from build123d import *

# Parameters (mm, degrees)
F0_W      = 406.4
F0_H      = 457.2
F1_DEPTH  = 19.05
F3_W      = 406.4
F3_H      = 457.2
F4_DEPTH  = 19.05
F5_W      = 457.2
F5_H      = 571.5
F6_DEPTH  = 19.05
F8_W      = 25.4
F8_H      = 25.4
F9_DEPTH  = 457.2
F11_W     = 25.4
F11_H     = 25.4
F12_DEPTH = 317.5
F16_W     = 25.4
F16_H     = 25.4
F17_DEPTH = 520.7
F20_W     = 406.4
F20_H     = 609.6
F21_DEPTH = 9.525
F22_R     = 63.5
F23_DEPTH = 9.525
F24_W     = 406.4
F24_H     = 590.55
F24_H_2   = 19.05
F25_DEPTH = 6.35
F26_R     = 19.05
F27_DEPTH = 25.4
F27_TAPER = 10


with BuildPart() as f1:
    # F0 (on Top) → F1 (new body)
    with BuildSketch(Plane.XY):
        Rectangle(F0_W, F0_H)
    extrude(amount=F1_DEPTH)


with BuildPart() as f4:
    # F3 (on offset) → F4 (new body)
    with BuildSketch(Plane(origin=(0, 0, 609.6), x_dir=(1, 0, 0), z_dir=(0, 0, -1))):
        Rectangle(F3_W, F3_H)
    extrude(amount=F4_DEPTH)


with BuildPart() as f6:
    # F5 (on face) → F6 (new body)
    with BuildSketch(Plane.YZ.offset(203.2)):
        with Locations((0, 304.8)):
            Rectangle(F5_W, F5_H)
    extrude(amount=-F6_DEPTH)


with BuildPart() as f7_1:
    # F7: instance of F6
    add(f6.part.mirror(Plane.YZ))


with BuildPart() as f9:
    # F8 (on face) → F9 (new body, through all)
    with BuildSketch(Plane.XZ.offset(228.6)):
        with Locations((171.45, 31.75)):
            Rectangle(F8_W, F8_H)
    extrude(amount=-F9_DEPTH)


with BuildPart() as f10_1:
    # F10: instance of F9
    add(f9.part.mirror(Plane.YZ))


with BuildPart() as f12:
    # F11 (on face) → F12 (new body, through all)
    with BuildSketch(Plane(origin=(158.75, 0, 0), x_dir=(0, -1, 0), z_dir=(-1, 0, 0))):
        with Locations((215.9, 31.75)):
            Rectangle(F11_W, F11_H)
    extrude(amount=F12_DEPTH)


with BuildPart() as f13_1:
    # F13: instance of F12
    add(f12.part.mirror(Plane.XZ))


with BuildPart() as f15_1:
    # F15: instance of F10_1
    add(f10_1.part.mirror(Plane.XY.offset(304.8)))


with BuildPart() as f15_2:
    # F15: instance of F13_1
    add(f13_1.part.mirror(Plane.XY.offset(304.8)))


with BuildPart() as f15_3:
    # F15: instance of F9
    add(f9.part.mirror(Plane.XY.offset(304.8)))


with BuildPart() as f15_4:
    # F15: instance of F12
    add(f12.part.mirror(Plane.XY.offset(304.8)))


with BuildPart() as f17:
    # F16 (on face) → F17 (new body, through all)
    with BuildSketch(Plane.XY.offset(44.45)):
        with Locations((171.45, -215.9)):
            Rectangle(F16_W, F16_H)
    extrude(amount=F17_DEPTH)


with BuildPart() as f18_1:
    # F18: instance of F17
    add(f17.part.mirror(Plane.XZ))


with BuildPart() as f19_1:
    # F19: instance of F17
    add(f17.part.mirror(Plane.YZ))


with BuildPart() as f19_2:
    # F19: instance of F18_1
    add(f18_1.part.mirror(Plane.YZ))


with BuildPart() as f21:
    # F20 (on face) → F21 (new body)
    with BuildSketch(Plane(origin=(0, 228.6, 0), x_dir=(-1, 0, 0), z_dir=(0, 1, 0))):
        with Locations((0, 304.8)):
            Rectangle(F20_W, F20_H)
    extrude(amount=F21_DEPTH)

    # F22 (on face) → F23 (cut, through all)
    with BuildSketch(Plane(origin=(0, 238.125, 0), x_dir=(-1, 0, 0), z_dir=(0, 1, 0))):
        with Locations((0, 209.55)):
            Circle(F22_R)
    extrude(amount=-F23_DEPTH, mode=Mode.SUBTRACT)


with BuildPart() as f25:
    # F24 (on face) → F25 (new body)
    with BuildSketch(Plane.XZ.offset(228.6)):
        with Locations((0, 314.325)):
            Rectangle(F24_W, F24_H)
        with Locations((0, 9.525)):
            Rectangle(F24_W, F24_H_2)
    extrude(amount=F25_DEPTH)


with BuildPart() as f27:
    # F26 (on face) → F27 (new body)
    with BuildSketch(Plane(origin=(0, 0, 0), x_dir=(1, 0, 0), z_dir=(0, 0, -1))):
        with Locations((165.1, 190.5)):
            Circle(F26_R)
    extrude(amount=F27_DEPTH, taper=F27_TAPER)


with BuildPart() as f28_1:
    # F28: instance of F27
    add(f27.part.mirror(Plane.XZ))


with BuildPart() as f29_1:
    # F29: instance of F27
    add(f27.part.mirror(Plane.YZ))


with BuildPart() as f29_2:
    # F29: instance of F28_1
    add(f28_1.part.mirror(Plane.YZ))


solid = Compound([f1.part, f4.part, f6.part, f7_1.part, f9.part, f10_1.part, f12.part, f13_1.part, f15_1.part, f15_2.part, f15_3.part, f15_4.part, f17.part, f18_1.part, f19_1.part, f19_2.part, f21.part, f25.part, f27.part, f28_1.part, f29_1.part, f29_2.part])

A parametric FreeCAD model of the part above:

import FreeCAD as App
import Part
import Sketcher

V = App.Vector
Q = App.Units.Quantity


def add_polygon(sketch, points):
    """Adds a closed chain of lines whose ends are joined by coincident constraints."""
    first, n = sketch.GeometryCount, len(points)
    for a, b in zip(points, points[1:] + points[:1]):
        sketch.addGeometry(Part.LineSegment(App.Vector(*a, 0), App.Vector(*b, 0)), False)
    for i in range(n):
        sketch.addConstraint(Sketcher.Constraint("Coincident", first + i, 2, first + (i + 1) % n, 1))

doc = App.newDocument("Part")
body = doc.addObject("PartDesign::Body", "Body")

# Sketch on XY plane
sketch1 = doc.addObject("Sketcher::SketchObject", "Sketch")
body.addObject(sketch1)
sketch1.AttachmentSupport = (doc.XY_Plane, [""])
sketch1.MapMode = "FlatFace"
add_polygon(sketch1, [(-203.2, 228.6), (-203.2, -228.6), (203.2, -228.6), (203.2, 228.6)])  # lines 0-3
sketch1.addConstraint([
    Sketcher.Constraint("Vertical", 0),
    Sketcher.Constraint("Horizontal", 1),
    Sketcher.Constraint("Vertical", 2),
    Sketcher.Constraint("Horizontal", 3),
    Sketcher.Constraint("Symmetric", 0, 2, 2, 2, -1, 1),
    Sketcher.Constraint("DistanceX", 1, 1, 1, 2, Q("16 in")),
    Sketcher.Constraint("DistanceY", 0, 2, 0, 1, Q("18 in")),
])
pad1 = doc.addObject("PartDesign::Pad", "Pad")
body.addObject(pad1)
pad1.Profile = sketch1
pad1.Length = Q("0.75 in")
body2 = doc.addObject("PartDesign::Body", "Body001")

# Sketch on XY plane
sketch2 = doc.addObject("Sketcher::SketchObject", "Sketch001")
body2.addObject(sketch2)
sketch2.AttachmentSupport = (doc.getObject("XY_Plane001"), [""])
sketch2.MapMode = "FlatFace"
sketch2.AttachmentOffset = App.Placement(V(0, 0, 24 * 25.4), App.Rotation())
add_polygon(sketch2, [(-203.2, -228.6), (-203.2, 228.6), (203.2, 228.6), (203.2, -228.6)])  # lines 0-3
sketch2.addConstraint([
    Sketcher.Constraint("Vertical", 0),
    Sketcher.Constraint("Horizontal", 1),
    Sketcher.Constraint("Vertical", 2),
    Sketcher.Constraint("Horizontal", 3),
    Sketcher.Constraint("Symmetric", 0, 2, 2, 2, -1, 1),
    Sketcher.Constraint("DistanceX", 1, 1, 1, 2, Q("16 in")),
    Sketcher.Constraint("DistanceY", 0, 1, 0, 2, Q("18 in")),
])
pad2 = doc.addObject("PartDesign::Pad", "Pad001")
body2.addObject(pad2)
pad2.Profile = sketch2
pad2.Length = Q("0.75 in")
pad2.Reversed = True
body3 = doc.addObject("PartDesign::Body", "Body002")

# Sketch on YZ plane
sketch3 = doc.addObject("Sketcher::SketchObject", "Sketch002")
body3.addObject(sketch3)
sketch3.AttachmentSupport = (doc.getObject("YZ_Plane002"), [""])
sketch3.MapMode = "FlatFace"
sketch3.AttachmentOffset = App.Placement(V(0, 0, 8 * 25.4), App.Rotation())
add_polygon(sketch3, [(-228.6, 590.55), (-228.6, 19.05), (228.6, 19.05), (228.6, 590.55)])  # lines 0-3
sketch3.addConstraint([
    Sketcher.Constraint("Vertical", 0),
    Sketcher.Constraint("Horizontal", 1),
    Sketcher.Constraint("Vertical", 2),
    Sketcher.Constraint("Horizontal", 3),
    Sketcher.Constraint("DistanceX", 1, 1, 1, 2, Q("18 in")),
    Sketcher.Constraint("DistanceY", 0, 2, 0, 1, Q("22.5 in")),
    Sketcher.Constraint("DistanceX", 0, 2, -1, 1, Q("9 in")),
    Sketcher.Constraint("DistanceY", -1, 1, 0, 2, Q("0.75 in")),
])
pad3 = doc.addObject("PartDesign::Pad", "Pad002")
body3.addObject(pad3)
pad3.Profile = sketch3
pad3.Length = Q("0.75 in")
pad3.Reversed = True
body4 = doc.addObject("PartDesign::Body", "Body003")
doc.recompute()

mirroring = doc.addObject("Part::Mirroring", "Mirroring")
mirroring.Source = body3
mirroring.Base = V(0, 0, 0)
mirroring.Normal = V(1, 0, 0)
body4.BaseFeature = mirroring
doc.recompute()
body5 = doc.addObject("PartDesign::Body", "Body004")

# Sketch on XZ plane
sketch4 = doc.addObject("Sketcher::SketchObject", "Sketch003")
body5.addObject(sketch4)
sketch4.AttachmentSupport = (doc.getObject("XZ_Plane004"), [""])
sketch4.MapMode = "FlatFace"
sketch4.AttachmentOffset = App.Placement(V(0, 0, 9 * 25.4), App.Rotation())
add_polygon(sketch4, [(158.75, 44.45), (158.75, 19.05), (184.15, 19.05), (184.15, 44.45)])  # lines 0-3
sketch4.addConstraint([
    Sketcher.Constraint("Vertical", 0),
    Sketcher.Constraint("Horizontal", 1),
    Sketcher.Constraint("Vertical", 2),
    Sketcher.Constraint("Horizontal", 3),
    Sketcher.Constraint("Equal", 3, 0),
    Sketcher.Constraint("DistanceX", 1, 1, 1, 2, Q("1 in")),
    Sketcher.Constraint("DistanceX", -1, 1, 0, 2, Q("6.25 in")),
    Sketcher.Constraint("DistanceY", -1, 1, 0, 2, Q("0.75 in")),
])
pad4 = doc.addObject("PartDesign::Pad", "Pad003")
body5.addObject(pad4)
pad4.Profile = sketch4
pad4.Length = Q("18 in")
pad4.Reversed = True
body6 = doc.addObject("PartDesign::Body", "Body005")
doc.recompute()

mirroring2 = doc.addObject("Part::Mirroring", "Mirroring001")
mirroring2.Source = body5
mirroring2.Base = V(0, 0, 0)
mirroring2.Normal = V(1, 0, 0)
body6.BaseFeature = mirroring2
doc.recompute()
body7 = doc.addObject("PartDesign::Body", "Body006")

# Sketch on YZ plane
sketch5 = doc.addObject("Sketcher::SketchObject", "Sketch004")
body7.addObject(sketch5)
sketch5.AttachmentSupport = (doc.getObject("YZ_Plane006"), [""])
sketch5.MapMode = "FlatFace"
sketch5.AttachmentOffset = App.Placement(V(0, 0, 6.25 * 25.4), App.Rotation())
add_polygon(sketch5, [(-203.2, 44.45), (-203.2, 19.05), (-228.6, 19.05), (-228.6, 44.45)])  # lines 0-3
sketch5.addConstraint([
    Sketcher.Constraint("Vertical", 0),
    Sketcher.Constraint("Horizontal", 1),
    Sketcher.Constraint("Vertical", 2),
    Sketcher.Constraint("Horizontal", 3),
    Sketcher.Constraint("Equal", 3, 0),
    Sketcher.Constraint("DistanceX", 1, 2, 1, 1, Q("1 in")),
    Sketcher.Constraint("DistanceX", 0, 2, -1, 1, Q("8 in")),
    Sketcher.Constraint("DistanceY", -1, 1, 0, 2, Q("0.75 in")),
])
pad5 = doc.addObject("PartDesign::Pad", "Pad004")
body7.addObject(pad5)
pad5.Profile = sketch5
pad5.Length = Q("12.5 in")
pad5.Reversed = True
body8 = doc.addObject("PartDesign::Body", "Body007")
doc.recompute()

mirroring3 = doc.addObject("Part::Mirroring", "Mirroring002")
mirroring3.Source = body7
mirroring3.Base = V(0, 0, 0)
mirroring3.Normal = V(0, -1, 0)
body8.BaseFeature = mirroring3
doc.recompute()
body9 = doc.addObject("PartDesign::Body", "Body008")
doc.recompute()

mirroring4 = doc.addObject("Part::Mirroring", "Mirroring003")
mirroring4.Source = body6
mirroring4.Base = V(0, 0, 304.8)
mirroring4.Normal = V(0, 0, 1)
body9.BaseFeature = mirroring4
doc.recompute()
body10 = doc.addObject("PartDesign::Body", "Body009")
doc.recompute()

mirroring5 = doc.addObject("Part::Mirroring", "Mirroring004")
mirroring5.Source = body8
mirroring5.Base = V(0, 0, 304.8)
mirroring5.Normal = V(0, 0, 1)
body10.BaseFeature = mirroring5
doc.recompute()
body11 = doc.addObject("PartDesign::Body", "Body010")
doc.recompute()

mirroring6 = doc.addObject("Part::Mirroring", "Mirroring005")
mirroring6.Source = body5
mirroring6.Base = V(0, 0, 304.8)
mirroring6.Normal = V(0, 0, 1)
body11.BaseFeature = mirroring6
doc.recompute()
body12 = doc.addObject("PartDesign::Body", "Body011")
doc.recompute()

mirroring7 = doc.addObject("Part::Mirroring", "Mirroring006")
mirroring7.Source = body7
mirroring7.Base = V(0, 0, 304.8)
mirroring7.Normal = V(0, 0, 1)
body12.BaseFeature = mirroring7
doc.recompute()
body13 = doc.addObject("PartDesign::Body", "Body012")

# Sketch on XY plane
sketch6 = doc.addObject("Sketcher::SketchObject", "Sketch005")
body13.addObject(sketch6)
sketch6.AttachmentSupport = (doc.getObject("XY_Plane012"), [""])
sketch6.MapMode = "FlatFace"
sketch6.AttachmentOffset = App.Placement(V(0, 0, 1.75 * 25.4), App.Rotation())
add_polygon(sketch6, [(158.75, -203.2), (158.75, -228.6), (184.15, -228.6), (184.15, -203.2)])  # lines 0-3
sketch6.addConstraint([
    Sketcher.Constraint("Vertical", 0),
    Sketcher.Constraint("Horizontal", 1),
    Sketcher.Constraint("Vertical", 2),
    Sketcher.Constraint("Horizontal", 3),
    Sketcher.Constraint("Equal", 3, 0),
    Sketcher.Constraint("DistanceX", 1, 1, 1, 2, Q("1 in")),
    Sketcher.Constraint("DistanceY", 0, 2, -1, 1, Q("9 in")),
    Sketcher.Constraint("DistanceX", -1, 1, 0, 2, Q("6.25 in")),
])
pad6 = doc.addObject("PartDesign::Pad", "Pad005")
body13.addObject(pad6)
pad6.Profile = sketch6
pad6.Length = Q("20.5 in")
body14 = doc.addObject("PartDesign::Body", "Body013")
doc.recompute()

mirroring8 = doc.addObject("Part::Mirroring", "Mirroring007")
mirroring8.Source = body13
mirroring8.Base = V(0, 0, 0)
mirroring8.Normal = V(0, -1, 0)
body14.BaseFeature = mirroring8
doc.recompute()
body15 = doc.addObject("PartDesign::Body", "Body014")
doc.recompute()

mirroring9 = doc.addObject("Part::Mirroring", "Mirroring008")
mirroring9.Source = body13
mirroring9.Base = V(0, 0, 0)
mirroring9.Normal = V(1, 0, 0)
body15.BaseFeature = mirroring9
doc.recompute()
body16 = doc.addObject("PartDesign::Body", "Body015")
doc.recompute()

mirroring10 = doc.addObject("Part::Mirroring", "Mirroring009")
mirroring10.Source = body14
mirroring10.Base = V(0, 0, 0)
mirroring10.Normal = V(1, 0, 0)
body16.BaseFeature = mirroring10
doc.recompute()
body17 = doc.addObject("PartDesign::Body", "Body016")

# Sketch on XZ plane
sketch7 = doc.addObject("Sketcher::SketchObject", "Sketch006")
body17.addObject(sketch7)
sketch7.AttachmentSupport = (doc.getObject("XZ_Plane016"), [""])
sketch7.MapMode = "FlatFace"
sketch7.AttachmentOffset = App.Placement(V(0, 0, -9 * 25.4), App.Rotation())
add_polygon(sketch7, [(203.2, 609.6), (203.2, 0), (-203.2, 0), (-203.2, 609.6)])  # lines 0-3
sketch7.addConstraint([
    Sketcher.Constraint("Vertical", 0),
    Sketcher.Constraint("Horizontal", 1),
    Sketcher.Constraint("Vertical", 2),
    Sketcher.Constraint("Horizontal", 3),
    Sketcher.Constraint("Symmetric", 0, 2, 1, 2, -1, 1),
    Sketcher.Constraint("DistanceX", 1, 2, 1, 1, Q("16 in")),
    Sketcher.Constraint("DistanceY", 0, 2, 0, 1, Q("24 in")),
])
pad7 = doc.addObject("PartDesign::Pad", "Pad006")
body17.addObject(pad7)
pad7.Profile = sketch7
pad7.Length = Q("0.375 in")
pad7.Reversed = True

# Sketch on XZ plane
sketch8 = doc.addObject("Sketcher::SketchObject", "Sketch007")
body17.addObject(sketch8)
sketch8.AttachmentSupport = (doc.getObject("XZ_Plane016"), [""])
sketch8.MapMode = "FlatFace"
sketch8.AttachmentOffset = App.Placement(V(0, 0, -9.375 * 25.4), App.Rotation())
sketch8.addGeometry(Part.Circle(V(0, 209.55, 0), V(0, 0, 1), 63.5), False)
sketch8.addConstraint([
    Sketcher.Constraint("PointOnObject", 0, 3, -2),
    Sketcher.Constraint("Diameter", 0, Q("5 in")),
    Sketcher.Constraint("DistanceY", -1, 1, 0, 3, Q("8.25 in")),
])
pocket1 = doc.addObject("PartDesign::Pocket", "Pocket")
body17.addObject(pocket1)
pocket1.Profile = sketch8
pocket1.Type = "ThroughAll"
pocket1.Reversed = True
body18 = doc.addObject("PartDesign::Body", "Body017")

# Sketch on XZ plane
sketch9 = doc.addObject("Sketcher::SketchObject", "Sketch008")
body18.addObject(sketch9)
sketch9.AttachmentSupport = (doc.getObject("XZ_Plane017"), [""])
sketch9.MapMode = "FlatFace"
sketch9.AttachmentOffset = App.Placement(V(0, 0, 9 * 25.4), App.Rotation())
add_polygon(sketch9, [(-203.2, 609.6), (-203.2, 0), (203.2, 0), (203.2, 609.6)])  # lines 0-3
sketch9.addConstraint([
    Sketcher.Constraint("Vertical", 0),
    Sketcher.Constraint("Horizontal", 1),
    Sketcher.Constraint("Vertical", 2),
    Sketcher.Constraint("Horizontal", 3),
    Sketcher.Constraint("Symmetric", 0, 2, 1, 2, -1, 1),
    Sketcher.Constraint("DistanceX", 1, 1, 1, 2, Q("16 in")),
    Sketcher.Constraint("DistanceY", 0, 2, 0, 1, Q("24 in")),
])
pad8 = doc.addObject("PartDesign::Pad", "Pad007")
body18.addObject(pad8)
pad8.Profile = sketch9
pad8.Length = Q("0.25 in")
body19 = doc.addObject("PartDesign::Body", "Body018")

# Sketch on XY plane
sketch10 = doc.addObject("Sketcher::SketchObject", "Sketch009")
body19.addObject(sketch10)
sketch10.AttachmentSupport = (doc.getObject("XY_Plane018"), [""])
sketch10.MapMode = "FlatFace"
sketch10.addGeometry(Part.Circle(V(165.1, -190.5, 0), V(0, 0, 1), 19.05), False)
sketch10.addConstraint([
    Sketcher.Constraint("Diameter", 0, Q("1.5 in")),
    Sketcher.Constraint("DistanceX", -1, 1, 0, 3, Q("6.5 in")),
    Sketcher.Constraint("DistanceY", 0, 3, -1, 1, Q("7.5 in")),
])
pad9 = doc.addObject("PartDesign::Pad", "Pad008")
body19.addObject(pad9)
pad9.Profile = sketch10
pad9.Length = Q("1 in")
pad9.Reversed = True
pad9.TaperAngle = -10
body20 = doc.addObject("PartDesign::Body", "Body019")
doc.recompute()

mirroring11 = doc.addObject("Part::Mirroring", "Mirroring010")
mirroring11.Source = body19
mirroring11.Base = V(0, 0, 0)
mirroring11.Normal = V(0, -1, 0)
body20.BaseFeature = mirroring11
doc.recompute()
body21 = doc.addObject("PartDesign::Body", "Body020")
doc.recompute()

mirroring12 = doc.addObject("Part::Mirroring", "Mirroring011")
mirroring12.Source = body19
mirroring12.Base = V(0, 0, 0)
mirroring12.Normal = V(1, 0, 0)
body21.BaseFeature = mirroring12
doc.recompute()
body22 = doc.addObject("PartDesign::Body", "Body021")
doc.recompute()

mirroring13 = doc.addObject("Part::Mirroring", "Mirroring012")
mirroring13.Source = body20
mirroring13.Base = V(0, 0, 0)
mirroring13.Normal = V(1, 0, 0)
body22.BaseFeature = mirroring13
doc.recompute()

doc.recompute()
